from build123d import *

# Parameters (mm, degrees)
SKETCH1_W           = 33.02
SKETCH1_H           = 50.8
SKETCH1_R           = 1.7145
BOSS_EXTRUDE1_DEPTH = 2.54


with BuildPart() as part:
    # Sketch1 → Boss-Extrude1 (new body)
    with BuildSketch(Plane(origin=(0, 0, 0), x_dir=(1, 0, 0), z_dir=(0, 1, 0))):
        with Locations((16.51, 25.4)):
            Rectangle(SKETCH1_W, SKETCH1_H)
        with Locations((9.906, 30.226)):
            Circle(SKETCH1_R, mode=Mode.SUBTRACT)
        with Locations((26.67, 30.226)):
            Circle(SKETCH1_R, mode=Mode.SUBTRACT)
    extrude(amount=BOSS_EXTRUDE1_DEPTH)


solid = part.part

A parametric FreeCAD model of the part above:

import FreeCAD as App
import Part
import Sketcher
Q = App.Units.Quantity

doc = App.newDocument("Part")
params = doc.addObject("Spreadsheet::Sheet", "Params")
for row, (alias, value) in enumerate([
    ("sketch1_height", "2 in"),
    ("sketch1_diameter", "0.135 in"),
    ("sketch1_width", "1.3 in"),
    ("pad1_length", "0.1 in"),
], start=1):
    params.set(f"A{row}", alias)
    params.set(f"B{row}", "=" + value)
    params.setAlias(f"B{row}", alias)

body = doc.addObject("PartDesign::Body", "Body")

sketch1 = doc.addObject("Sketcher::SketchObject", "Sketch")
body.addObject(sketch1)
sketch1.AttachmentSupport = (doc.XZ_Plane, [""])
sketch1.MapMode = "FlatFace"
sketch1.addGeometry([
    Part.LineSegment(App.Vector(0, -50.8, 0), App.Vector(0, 0, 0)),
    Part.LineSegment(App.Vector(0, 0, 0), App.Vector(33, 0, 0)),
    Part.LineSegment(App.Vector(33, 0, 0), App.Vector(33, -50.8, 0)),
    Part.LineSegment(App.Vector(33, -50.8, 0), App.Vector(0, -50.8, 0)),
    Part.Circle(App.Vector(9.9, -30.2, 0), App.Vector(0, 0, 1), 1.7),
    Part.Circle(App.Vector(26.7, -30.2, 0), App.Vector(0, 0, 1), 1.7),
], False)
sketch1.addConstraint([
    Sketcher.Constraint("Coincident", 0, 2, 1, 1),
    Sketcher.Constraint("Coincident", 1, 2, 2, 1),
    Sketcher.Constraint("Coincident", 2, 2, 3, 1),
    Sketcher.Constraint("Coincident", 3, 2, 0, 1),
    Sketcher.Constraint("Vertical", 0),
    Sketcher.Constraint("Horizontal", 1),
    Sketcher.Constraint("Vertical", 2),
    Sketcher.Constraint("Horizontal", 3),
    Sketcher.Constraint("Coincident", 0, 2, -1, 1),
    Sketcher.Constraint("Equal", 4, 5),
    Sketcher.Constraint("Horizontal", 4, 3, 5, 3),
    Sketcher.Constraint("DistanceY", 0, 1, 0, 2, Q("2 in")),
    Sketcher.Constraint("Diameter", 4, Q("0.135 in")),
    Sketcher.Constraint("DistanceX", 1, 1, 1, 2, Q("1.3 in")),
    Sketcher.Constraint("DistanceX", -1, 1, 4, 3, Q("0.39 in")),
    Sketcher.Constraint("DistanceY", 4, 3, -1, 1, Q("1.19 in")),
    Sketcher.Constraint("DistanceX", -1, 1, 5, 3, Q("1.05 in")),
])
sketch1.setExpression("Constraints[11]", "Params.sketch1_height")
sketch1.setExpression("Constraints[12]", "Params.sketch1_diameter")
sketch1.setExpression("Constraints[13]", "Params.sketch1_width")
pad1 = doc.addObject("PartDesign::Pad", "Pad")
body.addObject(pad1)
pad1.Profile = sketch1
pad1.setExpression("Length", "Params.pad1_length")
pad1.Reversed = True

doc.recompute()
